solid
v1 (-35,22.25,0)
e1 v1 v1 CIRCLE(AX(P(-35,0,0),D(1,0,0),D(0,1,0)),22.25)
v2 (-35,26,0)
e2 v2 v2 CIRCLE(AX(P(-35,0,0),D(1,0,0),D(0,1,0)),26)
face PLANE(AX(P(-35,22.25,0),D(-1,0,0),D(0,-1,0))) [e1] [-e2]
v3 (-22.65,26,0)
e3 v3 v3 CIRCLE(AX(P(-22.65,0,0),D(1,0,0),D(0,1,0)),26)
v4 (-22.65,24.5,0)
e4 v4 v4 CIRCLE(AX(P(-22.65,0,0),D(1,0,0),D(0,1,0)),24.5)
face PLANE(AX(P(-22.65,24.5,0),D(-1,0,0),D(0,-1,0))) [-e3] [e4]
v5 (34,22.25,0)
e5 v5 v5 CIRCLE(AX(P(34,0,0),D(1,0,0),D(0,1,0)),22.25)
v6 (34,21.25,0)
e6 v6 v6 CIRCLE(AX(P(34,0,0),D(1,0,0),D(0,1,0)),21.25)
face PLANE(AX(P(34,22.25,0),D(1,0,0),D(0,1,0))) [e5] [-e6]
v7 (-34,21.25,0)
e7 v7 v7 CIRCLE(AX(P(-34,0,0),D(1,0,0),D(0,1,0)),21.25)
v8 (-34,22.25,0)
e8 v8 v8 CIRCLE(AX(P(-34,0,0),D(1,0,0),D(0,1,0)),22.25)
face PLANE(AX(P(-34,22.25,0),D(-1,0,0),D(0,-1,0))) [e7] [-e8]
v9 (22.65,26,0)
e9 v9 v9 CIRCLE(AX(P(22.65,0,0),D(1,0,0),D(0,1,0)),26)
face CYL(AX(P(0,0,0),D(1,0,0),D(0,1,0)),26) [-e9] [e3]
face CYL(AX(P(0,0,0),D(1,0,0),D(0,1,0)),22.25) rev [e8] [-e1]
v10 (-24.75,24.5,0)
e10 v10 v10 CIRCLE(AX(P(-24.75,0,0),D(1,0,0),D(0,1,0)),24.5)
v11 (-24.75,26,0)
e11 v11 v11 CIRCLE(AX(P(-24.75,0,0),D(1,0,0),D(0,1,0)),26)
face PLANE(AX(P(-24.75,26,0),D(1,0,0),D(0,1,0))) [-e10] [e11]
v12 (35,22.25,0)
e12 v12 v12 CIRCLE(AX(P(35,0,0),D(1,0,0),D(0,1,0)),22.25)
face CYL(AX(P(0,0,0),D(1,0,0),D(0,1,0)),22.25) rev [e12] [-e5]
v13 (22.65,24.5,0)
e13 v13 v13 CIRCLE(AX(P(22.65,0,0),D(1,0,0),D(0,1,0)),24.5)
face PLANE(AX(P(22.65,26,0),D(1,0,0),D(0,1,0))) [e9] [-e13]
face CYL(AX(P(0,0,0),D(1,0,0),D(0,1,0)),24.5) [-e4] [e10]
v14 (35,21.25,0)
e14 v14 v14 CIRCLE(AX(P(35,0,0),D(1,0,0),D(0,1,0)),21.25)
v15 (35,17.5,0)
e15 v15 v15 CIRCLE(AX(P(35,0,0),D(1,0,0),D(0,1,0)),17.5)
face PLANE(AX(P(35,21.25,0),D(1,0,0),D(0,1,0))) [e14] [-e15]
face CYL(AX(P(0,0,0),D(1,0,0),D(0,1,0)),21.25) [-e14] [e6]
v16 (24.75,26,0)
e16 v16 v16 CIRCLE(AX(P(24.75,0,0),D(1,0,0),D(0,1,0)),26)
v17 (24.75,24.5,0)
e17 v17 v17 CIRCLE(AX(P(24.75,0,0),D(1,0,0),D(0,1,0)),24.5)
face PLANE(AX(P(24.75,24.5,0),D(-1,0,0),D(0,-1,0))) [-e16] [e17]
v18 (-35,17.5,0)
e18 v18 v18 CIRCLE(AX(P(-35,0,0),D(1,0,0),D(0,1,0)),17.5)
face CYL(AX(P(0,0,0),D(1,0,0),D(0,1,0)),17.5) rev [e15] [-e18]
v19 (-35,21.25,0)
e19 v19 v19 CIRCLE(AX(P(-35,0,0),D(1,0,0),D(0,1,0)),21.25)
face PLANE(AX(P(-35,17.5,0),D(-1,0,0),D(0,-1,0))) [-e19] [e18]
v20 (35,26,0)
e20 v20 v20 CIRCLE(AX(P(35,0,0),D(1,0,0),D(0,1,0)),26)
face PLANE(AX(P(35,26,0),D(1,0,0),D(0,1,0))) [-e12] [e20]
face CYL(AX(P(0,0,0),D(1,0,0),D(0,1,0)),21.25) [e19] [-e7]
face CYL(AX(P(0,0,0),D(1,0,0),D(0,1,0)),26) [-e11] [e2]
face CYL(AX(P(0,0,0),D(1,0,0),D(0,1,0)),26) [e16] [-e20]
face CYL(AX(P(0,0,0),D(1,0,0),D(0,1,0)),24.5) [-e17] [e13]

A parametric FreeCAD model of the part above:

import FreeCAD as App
import Part
import Sketcher

V = App.Vector
Q = App.Units.Quantity

doc = App.newDocument("Part")
params = doc.addObject("Spreadsheet::Sheet", "Params")
for row, (alias, value) in enumerate([
    ("sketch1_width", "1 mm"),
    ("sketch1_width2", "70 mm"),
    ("sketch1_width3", "2.1 mm"),
    ("sketch1_width4", "45.3 mm"),
    ("sketch1_height", "1.5 mm"),
    ("revolution_angle", "360 deg"),
], start=1):
    params.set(f"A{row}", alias)
    params.set(f"B{row}", "=" + value)
    params.setAlias(f"B{row}", alias)

body = doc.addObject("PartDesign::Body", "Body")

# Sketch on XY plane
sketch1 = body.newObject("Sketcher::SketchObject", "Sketch")
sketch1.AttachmentSupport = (doc.getObject("XY_Plane"), [""])
sketch1.MapMode = "FlatFace"
sketch1.addGeometry(Part.LineSegment(V(-24.75, 26, 0), V(-35, 26, 0)), False)
sketch1.addGeometry(Part.LineSegment(V(-35, 26, 0), V(-35, 22.25, 0)), False)
sketch1.addGeometry(Part.LineSegment(V(-35, 22.25, 0), V(-34, 22.25, 0)), False)
sketch1.addGeometry(Part.LineSegment(V(-34, 22.25, 0), V(-34, 21.25, 0)), False)
sketch1.addGeometry(Part.LineSegment(V(-34, 21.25, 0), V(-35, 21.25, 0)), False)
sketch1.addGeometry(Part.LineSegment(V(-35, 21.25, 0), V(-35, 17.5, 0)), False)
sketch1.addGeometry(Part.LineSegment(V(-35, 17.5, 0), V(35, 17.5, 0)), False)
sketch1.addGeometry(Part.LineSegment(V(35, 17.5, 0), V(35, 21.25, 0)), False)
sketch1.addGeometry(Part.LineSegment(V(35, 21.25, 0), V(34, 21.25, 0)), False)
sketch1.addGeometry(Part.LineSegment(V(34, 21.25, 0), V(34, 22.25, 0)), False)
sketch1.addGeometry(Part.LineSegment(V(34, 22.25, 0), V(35, 22.25, 0)), False)
sketch1.addGeometry(Part.LineSegment(V(35, 22.25, 0), V(35, 26, 0)), False)
sketch1.addGeometry(Part.LineSegment(V(35, 26, 0), V(24.75, 26, 0)), False)
sketch1.addGeometry(Part.LineSegment(V(24.75, 26, 0), V(24.75, 24.5, 0)), False)
sketch1.addGeometry(Part.LineSegment(V(24.75, 24.5, 0), V(22.65, 24.5, 0)), False)
sketch1.addGeometry(Part.LineSegment(V(22.65, 24.5, 0), V(22.65, 26, 0)), False)
sketch1.addGeometry(Part.LineSegment(V(22.65, 26, 0), V(-22.65, 26, 0)), False)
sketch1.addGeometry(Part.LineSegment(V(-22.65, 26, 0), V(-22.65, 24.5, 0)), False)
sketch1.addGeometry(Part.LineSegment(V(-22.65, 24.5, 0), V(-24.75, 24.5, 0)), False)
sketch1.addGeometry(Part.LineSegment(V(-24.75, 24.5, 0), V(-24.75, 26, 0)), False)
sketch1.addConstraint(Sketcher.Constraint("Coincident", 0, 2, 1, 1))
sketch1.addConstraint(Sketcher.Constraint("Coincident", 1, 2, 2, 1))
sketch1.addConstraint(Sketcher.Constraint("Coincident", 2, 2, 3, 1))
sketch1.addConstraint(Sketcher.Constraint("Coincident", 3, 2, 4, 1))
sketch1.addConstraint(Sketcher.Constraint("Coincident", 4, 2, 5, 1))
sketch1.addConstraint(Sketcher.Constraint("Coincident", 5, 2, 6, 1))
sketch1.addConstraint(Sketcher.Constraint("Coincident", 6, 2, 7, 1))
sketch1.addConstraint(Sketcher.Constraint("Coincident", 7, 2, 8, 1))
sketch1.addConstraint(Sketcher.Constraint("Coincident", 8, 2, 9, 1))
sketch1.addConstraint(Sketcher.Constraint("Coincident", 9, 2, 10, 1))
sketch1.addConstraint(Sketcher.Constraint("Coincident", 10, 2, 11, 1))
sketch1.addConstraint(Sketcher.Constraint("Coincident", 11, 2, 12, 1))
sketch1.addConstraint(Sketcher.Constraint("Coincident", 12, 2, 13, 1))
sketch1.addConstraint(Sketcher.Constraint("Coincident", 13, 2, 14, 1))
sketch1.addConstraint(Sketcher.Constraint("Coincident", 14, 2, 15, 1))
sketch1.addConstraint(Sketcher.Constraint("Coincident", 15, 2, 16, 1))
sketch1.addConstraint(Sketcher.Constraint("Coincident", 16, 2, 17, 1))
sketch1.addConstraint(Sketcher.Constraint("Coincident", 17, 2, 18, 1))
sketch1.addConstraint(Sketcher.Constraint("Coincident", 18, 2, 19, 1))
sketch1.addConstraint(Sketcher.Constraint("Coincident", 19, 2, 0, 1))
sketch1.addConstraint(Sketcher.Constraint("Horizontal", 0))
sketch1.addConstraint(Sketcher.Constraint("Vertical", 1))
sketch1.addConstraint(Sketcher.Constraint("Horizontal", 2))
sketch1.addConstraint(Sketcher.Constraint("Vertical", 3))
sketch1.addConstraint(Sketcher.Constraint("Horizontal", 4))
sketch1.addConstraint(Sketcher.Constraint("Vertical", 5))
sketch1.addConstraint(Sketcher.Constraint("Horizontal", 6))
sketch1.addConstraint(Sketcher.Constraint("Vertical", 7))
sketch1.addConstraint(Sketcher.Constraint("Horizontal", 8))
sketch1.addConstraint(Sketcher.Constraint("Vertical", 9))
sketch1.addConstraint(Sketcher.Constraint("Horizontal", 10))
sketch1.addConstraint(Sketcher.Constraint("Vertical", 11))
sketch1.addConstraint(Sketcher.Constraint("Horizontal", 12))
sketch1.addConstraint(Sketcher.Constraint("Vertical", 13))
sketch1.addConstraint(Sketcher.Constraint("Horizontal", 14))
sketch1.addConstraint(Sketcher.Constraint("Vertical", 15))
sketch1.addConstraint(Sketcher.Constraint("Horizontal", 16))
sketch1.addConstraint(Sketcher.Constraint("Vertical", 17))
sketch1.addConstraint(Sketcher.Constraint("Horizontal", 18))
sketch1.addConstraint(Sketcher.Constraint("Vertical", 19))
sketch1.addConstraint(Sketcher.Constraint("Symmetric", 4, 2, 7, 2, -2))
sketch1.addConstraint(Sketcher.Constraint("Symmetric", 2, 2, 9, 2, -2))
sketch1.addConstraint(Sketcher.Constraint("Symmetric", 0, 2, 11, 2, -2))
sketch1.addConstraint(Sketcher.Constraint("Symmetric", 14, 2, 17, 2, -2))
sketch1.addConstraint(Sketcher.Constraint("Horizontal", 12, 2, 15, 2))
sketch1.addConstraint(Sketcher.Constraint("Vertical", 1, 2, 4, 2))
sketch1.addConstraint(Sketcher.Constraint("Equal", 0, 12))
sketch1.addConstraint(Sketcher.Constraint("Equal", 10, 3))
sketch1.addConstraint(Sketcher.Constraint("Equal", 1, 5))
sketch1.addConstraint(Sketcher.Constraint("DistanceX", 2, 1, 2, 2, Q("1 mm")))
sketch1.addConstraint(Sketcher.Constraint("DistanceX", 6, 1, 6, 2, Q("70 mm")))
sketch1.addConstraint(Sketcher.Constraint("DistanceX", 14, 2, 14, 1, Q("2.1 mm")))
sketch1.addConstraint(Sketcher.Constraint("DistanceX", 16, 2, 16, 1, Q("45.3 mm")))
sketch1.addConstraint(Sketcher.Constraint("DistanceY", 13, 2, 13, 1, Q("1.5 mm")))
sketch1.addConstraint(Sketcher.Constraint("DistanceY", -1, 1, 0, 2, Q("26 mm")))
sketch1.addConstraint(Sketcher.Constraint("DistanceY", 1, 2, 1, 1, Q("3.75 mm")))
sketch1.setExpression("Constraints[49]", "Params.sketch1_width")
sketch1.setExpression("Constraints[50]", "Params.sketch1_width2")
sketch1.setExpression("Constraints[51]", "Params.sketch1_width3")
sketch1.setExpression("Constraints[52]", "Params.sketch1_width4")
sketch1.setExpression("Constraints[53]", "Params.sketch1_height")
revolution = body.newObject("PartDesign::Revolution", "Revolution")
revolution.Profile = sketch1
revolution.ReferenceAxis = (sketch1, ["H_Axis"])
revolution.setExpression("Angle", "Params.revolution_angle")

doc.recompute()
